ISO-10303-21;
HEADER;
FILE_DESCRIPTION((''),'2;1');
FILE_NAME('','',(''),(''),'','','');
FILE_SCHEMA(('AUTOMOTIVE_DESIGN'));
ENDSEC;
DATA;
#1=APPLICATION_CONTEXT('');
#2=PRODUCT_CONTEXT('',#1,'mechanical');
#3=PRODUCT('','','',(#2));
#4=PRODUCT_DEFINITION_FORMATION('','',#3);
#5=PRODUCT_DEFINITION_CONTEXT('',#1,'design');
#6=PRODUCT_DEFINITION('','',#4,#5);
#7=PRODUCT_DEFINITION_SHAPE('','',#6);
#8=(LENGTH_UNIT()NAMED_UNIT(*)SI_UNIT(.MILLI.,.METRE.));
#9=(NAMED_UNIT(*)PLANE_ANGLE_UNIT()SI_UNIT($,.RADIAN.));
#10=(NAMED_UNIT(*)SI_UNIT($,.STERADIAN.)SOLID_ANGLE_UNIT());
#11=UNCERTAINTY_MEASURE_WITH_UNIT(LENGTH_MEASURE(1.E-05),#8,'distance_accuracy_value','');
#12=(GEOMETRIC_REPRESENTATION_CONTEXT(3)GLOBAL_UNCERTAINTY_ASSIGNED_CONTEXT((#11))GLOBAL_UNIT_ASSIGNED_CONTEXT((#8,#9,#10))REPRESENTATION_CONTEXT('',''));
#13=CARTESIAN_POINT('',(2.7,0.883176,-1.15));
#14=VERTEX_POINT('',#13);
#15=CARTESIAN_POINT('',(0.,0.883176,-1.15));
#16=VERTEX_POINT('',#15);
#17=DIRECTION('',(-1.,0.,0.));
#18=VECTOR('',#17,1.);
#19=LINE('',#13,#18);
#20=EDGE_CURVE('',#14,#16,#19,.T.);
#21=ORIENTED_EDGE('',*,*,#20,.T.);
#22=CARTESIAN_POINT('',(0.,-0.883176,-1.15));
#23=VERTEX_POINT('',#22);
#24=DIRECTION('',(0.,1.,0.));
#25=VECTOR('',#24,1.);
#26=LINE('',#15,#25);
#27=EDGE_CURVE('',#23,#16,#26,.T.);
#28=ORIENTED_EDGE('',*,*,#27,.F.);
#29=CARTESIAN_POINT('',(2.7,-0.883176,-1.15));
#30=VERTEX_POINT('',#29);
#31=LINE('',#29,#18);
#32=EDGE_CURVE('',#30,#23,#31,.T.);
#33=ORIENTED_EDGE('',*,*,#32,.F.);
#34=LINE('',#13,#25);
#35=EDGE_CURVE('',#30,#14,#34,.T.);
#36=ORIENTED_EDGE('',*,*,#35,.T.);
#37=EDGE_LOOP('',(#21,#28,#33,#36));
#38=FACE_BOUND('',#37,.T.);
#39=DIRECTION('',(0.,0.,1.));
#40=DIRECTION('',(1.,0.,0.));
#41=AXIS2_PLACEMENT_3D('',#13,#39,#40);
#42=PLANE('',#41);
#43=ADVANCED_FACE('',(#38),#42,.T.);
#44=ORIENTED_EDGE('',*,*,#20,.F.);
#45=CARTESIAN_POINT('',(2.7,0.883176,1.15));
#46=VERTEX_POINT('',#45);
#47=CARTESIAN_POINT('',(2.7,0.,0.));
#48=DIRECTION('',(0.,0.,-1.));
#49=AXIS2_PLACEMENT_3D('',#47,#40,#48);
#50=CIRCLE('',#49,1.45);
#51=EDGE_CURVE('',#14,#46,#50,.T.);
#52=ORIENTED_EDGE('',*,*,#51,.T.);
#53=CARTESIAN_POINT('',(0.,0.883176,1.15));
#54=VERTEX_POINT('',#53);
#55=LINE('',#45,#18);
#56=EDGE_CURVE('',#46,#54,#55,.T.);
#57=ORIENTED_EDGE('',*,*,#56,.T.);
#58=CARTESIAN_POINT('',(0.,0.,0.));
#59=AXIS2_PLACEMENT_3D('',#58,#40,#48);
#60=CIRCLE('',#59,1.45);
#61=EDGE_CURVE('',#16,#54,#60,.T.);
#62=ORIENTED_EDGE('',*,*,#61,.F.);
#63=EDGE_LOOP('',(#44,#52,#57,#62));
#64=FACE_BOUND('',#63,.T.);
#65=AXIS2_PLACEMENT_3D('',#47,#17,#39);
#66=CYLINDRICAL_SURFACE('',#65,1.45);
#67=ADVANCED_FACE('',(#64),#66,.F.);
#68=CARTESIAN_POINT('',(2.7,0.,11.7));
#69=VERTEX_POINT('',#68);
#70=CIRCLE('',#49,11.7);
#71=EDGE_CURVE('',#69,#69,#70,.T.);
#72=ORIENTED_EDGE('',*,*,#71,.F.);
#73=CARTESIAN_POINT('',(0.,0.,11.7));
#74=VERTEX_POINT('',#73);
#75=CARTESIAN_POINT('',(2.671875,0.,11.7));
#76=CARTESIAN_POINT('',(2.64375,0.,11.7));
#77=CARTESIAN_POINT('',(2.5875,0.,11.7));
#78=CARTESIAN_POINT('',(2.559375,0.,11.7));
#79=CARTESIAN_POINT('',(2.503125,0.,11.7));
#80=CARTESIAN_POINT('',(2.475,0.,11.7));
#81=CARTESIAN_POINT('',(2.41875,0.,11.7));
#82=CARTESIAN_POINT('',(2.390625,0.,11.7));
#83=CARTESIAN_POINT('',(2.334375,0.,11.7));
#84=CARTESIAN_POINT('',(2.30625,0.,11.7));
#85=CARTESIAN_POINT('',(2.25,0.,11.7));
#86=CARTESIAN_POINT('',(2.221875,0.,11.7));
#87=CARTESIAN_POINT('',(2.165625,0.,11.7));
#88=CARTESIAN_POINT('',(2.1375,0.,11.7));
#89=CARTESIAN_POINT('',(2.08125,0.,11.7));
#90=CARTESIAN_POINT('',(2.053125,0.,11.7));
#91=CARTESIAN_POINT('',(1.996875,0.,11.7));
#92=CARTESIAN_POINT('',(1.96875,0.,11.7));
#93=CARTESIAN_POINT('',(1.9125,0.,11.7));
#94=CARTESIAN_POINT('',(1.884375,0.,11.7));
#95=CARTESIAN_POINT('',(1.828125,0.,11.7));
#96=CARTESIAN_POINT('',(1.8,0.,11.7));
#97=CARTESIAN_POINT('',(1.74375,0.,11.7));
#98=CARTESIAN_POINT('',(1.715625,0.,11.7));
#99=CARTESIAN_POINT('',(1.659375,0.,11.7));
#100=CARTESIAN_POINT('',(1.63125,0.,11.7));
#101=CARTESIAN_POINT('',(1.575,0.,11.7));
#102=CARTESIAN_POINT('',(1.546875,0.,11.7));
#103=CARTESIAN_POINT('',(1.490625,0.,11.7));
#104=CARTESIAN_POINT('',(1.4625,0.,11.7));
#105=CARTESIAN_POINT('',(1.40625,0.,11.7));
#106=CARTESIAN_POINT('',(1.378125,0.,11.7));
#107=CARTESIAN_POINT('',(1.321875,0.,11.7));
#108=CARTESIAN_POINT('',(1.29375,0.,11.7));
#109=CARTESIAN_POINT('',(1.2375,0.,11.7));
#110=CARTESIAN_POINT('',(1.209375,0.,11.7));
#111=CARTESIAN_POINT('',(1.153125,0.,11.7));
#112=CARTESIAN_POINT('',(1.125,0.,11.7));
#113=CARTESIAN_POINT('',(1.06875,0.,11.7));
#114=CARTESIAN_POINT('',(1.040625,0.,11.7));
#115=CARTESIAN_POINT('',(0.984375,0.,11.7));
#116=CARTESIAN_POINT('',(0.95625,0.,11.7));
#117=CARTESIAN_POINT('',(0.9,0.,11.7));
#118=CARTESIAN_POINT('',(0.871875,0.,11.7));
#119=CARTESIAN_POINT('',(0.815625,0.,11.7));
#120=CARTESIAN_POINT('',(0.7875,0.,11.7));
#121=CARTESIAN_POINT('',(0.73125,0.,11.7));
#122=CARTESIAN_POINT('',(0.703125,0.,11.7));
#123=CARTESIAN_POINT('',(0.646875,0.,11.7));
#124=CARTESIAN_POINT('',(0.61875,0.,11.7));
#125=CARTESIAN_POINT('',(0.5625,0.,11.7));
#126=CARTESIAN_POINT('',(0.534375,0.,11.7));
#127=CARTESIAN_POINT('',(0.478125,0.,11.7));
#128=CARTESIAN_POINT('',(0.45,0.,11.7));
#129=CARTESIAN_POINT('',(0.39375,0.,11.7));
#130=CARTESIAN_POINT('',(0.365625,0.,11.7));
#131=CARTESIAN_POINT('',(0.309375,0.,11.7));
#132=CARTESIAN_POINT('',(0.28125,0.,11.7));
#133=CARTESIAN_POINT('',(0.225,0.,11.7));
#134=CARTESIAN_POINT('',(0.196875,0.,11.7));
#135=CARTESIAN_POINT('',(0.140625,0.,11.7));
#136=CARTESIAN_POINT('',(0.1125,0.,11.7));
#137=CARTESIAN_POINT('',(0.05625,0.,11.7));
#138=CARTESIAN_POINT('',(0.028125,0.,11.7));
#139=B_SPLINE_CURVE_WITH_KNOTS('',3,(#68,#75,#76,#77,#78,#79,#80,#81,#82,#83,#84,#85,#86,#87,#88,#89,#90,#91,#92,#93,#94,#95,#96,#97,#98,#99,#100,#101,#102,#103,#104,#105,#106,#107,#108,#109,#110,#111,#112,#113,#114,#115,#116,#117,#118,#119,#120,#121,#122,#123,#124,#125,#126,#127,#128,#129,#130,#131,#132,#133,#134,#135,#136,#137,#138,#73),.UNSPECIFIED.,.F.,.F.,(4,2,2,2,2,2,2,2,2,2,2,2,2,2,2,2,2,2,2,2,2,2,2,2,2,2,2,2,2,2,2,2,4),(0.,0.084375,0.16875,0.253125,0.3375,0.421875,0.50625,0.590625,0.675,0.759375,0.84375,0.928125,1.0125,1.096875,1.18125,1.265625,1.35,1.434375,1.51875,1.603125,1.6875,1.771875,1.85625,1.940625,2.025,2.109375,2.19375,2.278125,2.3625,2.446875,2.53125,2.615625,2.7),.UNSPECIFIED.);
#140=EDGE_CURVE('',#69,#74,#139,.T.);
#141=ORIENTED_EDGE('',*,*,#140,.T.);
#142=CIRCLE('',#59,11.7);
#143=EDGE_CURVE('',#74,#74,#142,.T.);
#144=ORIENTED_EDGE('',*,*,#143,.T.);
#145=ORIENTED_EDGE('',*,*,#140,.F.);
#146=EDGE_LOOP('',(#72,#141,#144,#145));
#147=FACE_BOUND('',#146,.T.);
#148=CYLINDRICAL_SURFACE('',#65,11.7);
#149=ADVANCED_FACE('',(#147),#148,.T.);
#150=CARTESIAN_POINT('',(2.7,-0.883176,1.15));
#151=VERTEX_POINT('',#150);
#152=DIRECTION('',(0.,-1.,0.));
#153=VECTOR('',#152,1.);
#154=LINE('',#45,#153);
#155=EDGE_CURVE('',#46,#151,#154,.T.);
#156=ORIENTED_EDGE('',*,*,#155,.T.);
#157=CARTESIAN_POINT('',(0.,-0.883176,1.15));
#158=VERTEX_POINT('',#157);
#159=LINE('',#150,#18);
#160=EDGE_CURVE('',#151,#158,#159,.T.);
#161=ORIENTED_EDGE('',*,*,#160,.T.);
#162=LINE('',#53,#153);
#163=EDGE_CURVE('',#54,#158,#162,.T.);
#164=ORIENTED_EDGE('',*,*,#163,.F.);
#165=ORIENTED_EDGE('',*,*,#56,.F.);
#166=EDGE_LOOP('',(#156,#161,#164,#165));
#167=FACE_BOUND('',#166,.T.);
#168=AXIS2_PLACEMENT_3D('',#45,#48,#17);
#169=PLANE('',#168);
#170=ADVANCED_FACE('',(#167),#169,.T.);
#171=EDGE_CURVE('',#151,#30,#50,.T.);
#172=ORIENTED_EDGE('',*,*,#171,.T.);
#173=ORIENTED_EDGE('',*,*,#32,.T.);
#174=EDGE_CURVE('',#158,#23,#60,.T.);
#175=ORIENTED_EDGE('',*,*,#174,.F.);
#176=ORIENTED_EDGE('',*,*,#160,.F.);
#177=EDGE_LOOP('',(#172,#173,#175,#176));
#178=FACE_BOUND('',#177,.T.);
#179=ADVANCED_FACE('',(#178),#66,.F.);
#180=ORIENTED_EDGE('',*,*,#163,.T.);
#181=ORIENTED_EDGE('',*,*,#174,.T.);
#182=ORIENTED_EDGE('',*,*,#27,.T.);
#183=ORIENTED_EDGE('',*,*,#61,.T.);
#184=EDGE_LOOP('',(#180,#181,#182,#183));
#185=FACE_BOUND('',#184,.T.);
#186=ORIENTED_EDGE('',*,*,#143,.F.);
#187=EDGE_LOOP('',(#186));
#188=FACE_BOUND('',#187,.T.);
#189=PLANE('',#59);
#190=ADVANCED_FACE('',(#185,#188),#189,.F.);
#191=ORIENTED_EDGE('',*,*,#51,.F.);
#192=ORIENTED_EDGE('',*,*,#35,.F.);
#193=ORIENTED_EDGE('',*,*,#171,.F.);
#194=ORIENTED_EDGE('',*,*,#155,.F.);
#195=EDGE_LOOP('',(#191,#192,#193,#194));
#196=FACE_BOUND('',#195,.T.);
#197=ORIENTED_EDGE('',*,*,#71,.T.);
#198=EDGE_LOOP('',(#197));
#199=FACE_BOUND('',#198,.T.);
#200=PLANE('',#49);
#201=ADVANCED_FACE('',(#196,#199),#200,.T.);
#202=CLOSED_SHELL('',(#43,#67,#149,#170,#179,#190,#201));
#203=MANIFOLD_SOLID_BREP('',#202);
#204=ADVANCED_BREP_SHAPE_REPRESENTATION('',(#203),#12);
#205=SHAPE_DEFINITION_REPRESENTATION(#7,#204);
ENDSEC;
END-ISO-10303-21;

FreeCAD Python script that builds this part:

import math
import FreeCAD as App
import Part
import Sketcher
Q = App.Units.Quantity

doc = App.newDocument("Part")
body = doc.addObject("PartDesign::Body", "Body")

# Sketch on YZ plane
sketch1 = body.newObject("Sketcher::SketchObject", "Sketch")
sketch1.AttachmentSupport = (doc.getObject("YZ_Plane"), [""])
sketch1.MapMode = "FlatFace"
sketch1.addGeometry(Part.Circle(App.Vector(0, 0, 0), App.Vector(0, 0, 1), 11.7), False)
sketch1.addGeometry(Part.ArcOfCircle(Part.Circle(App.Vector(0, 0, 0), App.Vector(0, 0, 1), 1.5), math.radians(-52), math.radians(52)), False)
sketch1.addGeometry(Part.LineSegment(App.Vector(0.9, -1.1, 0), App.Vector(-0.9, -1.1, 0)), False)
sketch1.addGeometry(Part.ArcOfCircle(Part.Circle(App.Vector(0, 0, 0), App.Vector(0, 0, 1), 1.5), math.radians(128), math.radians(232)), False)
sketch1.addGeometry(Part.LineSegment(App.Vector(-0.9, 1.1, 0), App.Vector(0.9, 1.1, 0)), False)
sketch1.addConstraint(Sketcher.Constraint("Coincident", 1, 1, 2, 1))
sketch1.addConstraint(Sketcher.Constraint("Coincident", 2, 2, 3, 2))
sketch1.addConstraint(Sketcher.Constraint("Coincident", 3, 1, 4, 1))
sketch1.addConstraint(Sketcher.Constraint("Coincident", 4, 2, 1, 2))
sketch1.addConstraint(Sketcher.Constraint("Horizontal", 2))
sketch1.addConstraint(Sketcher.Constraint("Horizontal", 4))
sketch1.addConstraint(Sketcher.Constraint("Coincident", 0, 3, -1, 1))
sketch1.addConstraint(Sketcher.Constraint("Coincident", 1, 3, -1, 1))
sketch1.addConstraint(Sketcher.Constraint("Coincident", 3, 3, -1, 1))
sketch1.addConstraint(Sketcher.Constraint("Equal", 1, 3))
sketch1.addConstraint(Sketcher.Constraint("Vertical", 2, 2, 3, 1))
sketch1.addConstraint(Sketcher.Constraint("Diameter", 0, Q("23.4 mm")))
sketch1.addConstraint(Sketcher.Constraint("Radius", 1, Q("1.45 mm")))
sketch1.addConstraint(Sketcher.Constraint("DistanceY", 2, 2, 3, 1, Q("2.3 mm")))
pad1 = body.newObject("PartDesign::Pad", "Pad")
pad1.Profile = sketch1
pad1.Length = 2.7

doc.recompute()
